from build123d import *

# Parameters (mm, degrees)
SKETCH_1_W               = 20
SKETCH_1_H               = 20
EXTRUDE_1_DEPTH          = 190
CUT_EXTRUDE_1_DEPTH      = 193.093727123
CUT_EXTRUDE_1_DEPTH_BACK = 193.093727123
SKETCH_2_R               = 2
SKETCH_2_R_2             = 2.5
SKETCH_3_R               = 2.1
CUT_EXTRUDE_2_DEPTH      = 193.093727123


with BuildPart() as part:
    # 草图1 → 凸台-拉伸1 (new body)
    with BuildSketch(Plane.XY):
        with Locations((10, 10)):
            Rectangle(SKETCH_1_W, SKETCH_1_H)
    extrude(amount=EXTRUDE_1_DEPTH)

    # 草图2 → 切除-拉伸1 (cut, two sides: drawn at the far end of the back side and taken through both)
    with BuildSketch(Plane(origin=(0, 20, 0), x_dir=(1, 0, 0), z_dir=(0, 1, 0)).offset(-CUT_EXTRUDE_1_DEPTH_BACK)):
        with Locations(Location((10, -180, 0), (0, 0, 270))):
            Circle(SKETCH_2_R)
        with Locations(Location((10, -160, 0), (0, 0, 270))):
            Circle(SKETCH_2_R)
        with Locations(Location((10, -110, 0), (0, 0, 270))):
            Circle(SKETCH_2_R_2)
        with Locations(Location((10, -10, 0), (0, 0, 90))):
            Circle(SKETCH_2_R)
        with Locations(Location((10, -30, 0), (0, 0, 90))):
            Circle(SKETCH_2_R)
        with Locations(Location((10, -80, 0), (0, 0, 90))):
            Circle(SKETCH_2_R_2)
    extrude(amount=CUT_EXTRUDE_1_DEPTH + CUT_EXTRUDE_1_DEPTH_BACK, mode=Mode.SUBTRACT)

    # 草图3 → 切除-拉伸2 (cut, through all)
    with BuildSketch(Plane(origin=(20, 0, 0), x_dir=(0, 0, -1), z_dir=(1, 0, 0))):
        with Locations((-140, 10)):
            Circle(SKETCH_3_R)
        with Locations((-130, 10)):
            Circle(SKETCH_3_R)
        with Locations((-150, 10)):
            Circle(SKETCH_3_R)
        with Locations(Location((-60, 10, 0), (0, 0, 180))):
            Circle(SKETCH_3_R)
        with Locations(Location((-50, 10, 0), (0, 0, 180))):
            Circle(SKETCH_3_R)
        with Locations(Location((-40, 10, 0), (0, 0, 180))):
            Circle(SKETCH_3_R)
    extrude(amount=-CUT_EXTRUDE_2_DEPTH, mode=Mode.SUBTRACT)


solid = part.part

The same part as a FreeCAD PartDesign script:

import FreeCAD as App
import Part
import Sketcher


def add_polygon(sketch, points):
    """Adds a closed chain of lines whose ends are joined by coincident constraints."""
    first, n = sketch.GeometryCount, len(points)
    for a, b in zip(points, points[1:] + points[:1]):
        sketch.addGeometry(Part.LineSegment(App.Vector(*a, 0), App.Vector(*b, 0)), False)
    for i in range(n):
        sketch.addConstraint(Sketcher.Constraint("Coincident", first + i, 2, first + (i + 1) % n, 1))

doc = App.newDocument("Part")
body = doc.addObject("PartDesign::Body", "Body")

sketch1 = doc.addObject("Sketcher::SketchObject", "Sketch")
body.addObject(sketch1)
sketch1.AttachmentSupport = (doc.XY_Plane, [""])
sketch1.MapMode = "FlatFace"
add_polygon(sketch1, [(0, 20), (0, 0), (20, 0), (20, 20)])
sketch1.addConstraint(Sketcher.Constraint("Vertical", 0))
sketch1.addConstraint(Sketcher.Constraint("Horizontal", 1))
sketch1.addConstraint(Sketcher.Constraint("Vertical", 2))
sketch1.addConstraint(Sketcher.Constraint("Horizontal", 3))
sketch1.addConstraint(Sketcher.Constraint("Coincident", 0, 2, -1, 1))
sketch1.addConstraint(Sketcher.Constraint("Equal", 3, 0))
sketch1.addConstraint(Sketcher.Constraint("DistanceX", 1, 1, 1, 2, 20.0))
pad1 = doc.addObject("PartDesign::Pad", "Pad")
body.addObject(pad1)
pad1.Profile = sketch1
pad1.Length = 190

sketch2 = doc.addObject("Sketcher::SketchObject", "Sketch001")
body.addObject(sketch2)
sketch2.AttachmentSupport = (doc.XZ_Plane, [""])
sketch2.MapMode = "FlatFace"
sketch2.AttachmentOffset = App.Placement(App.Vector(0, 0, -20), App.Rotation())
sketch2.addGeometry(Part.Circle(App.Vector(10, 180, 0), App.Vector(0, 0, 1), 2), False)
sketch2.addGeometry(Part.Circle(App.Vector(10, 160, 0), App.Vector(0, 0, 1), 2), False)
sketch2.addGeometry(Part.Circle(App.Vector(10, 110, 0), App.Vector(0, 0, 1), 2.5), False)
sketch2.addGeometry(Part.Circle(App.Vector(10, 10, 0), App.Vector(0, 0, 1), 2), False)
sketch2.addGeometry(Part.Circle(App.Vector(10, 30, 0), App.Vector(0, 0, 1), 2), False)
sketch2.addGeometry(Part.Circle(App.Vector(10, 80, 0), App.Vector(0, 0, 1), 2.5), False)
sketch2.addConstraint(Sketcher.Constraint("Equal", 0, 1))
sketch2.addConstraint(Sketcher.Constraint("Equal", 1, 3))
sketch2.addConstraint(Sketcher.Constraint("Equal", 3, 4))
sketch2.addConstraint(Sketcher.Constraint("Equal", 2, 5))
sketch2.addConstraint(Sketcher.Constraint("Vertical", 0, 3, 1, 3))
sketch2.addConstraint(Sketcher.Constraint("Vertical", 1, 3, 2, 3))
sketch2.addConstraint(Sketcher.Constraint("Vertical", 2, 3, 3, 3))
sketch2.addConstraint(Sketcher.Constraint("Vertical", 3, 3, 4, 3))
sketch2.addConstraint(Sketcher.Constraint("Vertical", 4, 3, 5, 3))
sketch2.addConstraint(Sketcher.Constraint("Diameter", 0, 4.0))
sketch2.addConstraint(Sketcher.Constraint("Diameter", 2, 5.0))
sketch2.addConstraint(Sketcher.Constraint("DistanceX", -1, 1, 0, 3, 10.0))
sketch2.addConstraint(Sketcher.Constraint("DistanceY", -1, 1, 0, 3, 180.0))
sketch2.addConstraint(Sketcher.Constraint("DistanceY", -1, 1, 1, 3, 160.0))
sketch2.addConstraint(Sketcher.Constraint("DistanceY", -1, 1, 2, 3, 110.0))
sketch2.addConstraint(Sketcher.Constraint("DistanceY", -1, 1, 3, 3, 10.0))
sketch2.addConstraint(Sketcher.Constraint("DistanceY", -1, 1, 4, 3, 30.0))
sketch2.addConstraint(Sketcher.Constraint("DistanceY", -1, 1, 5, 3, 80.0))
pocket1 = doc.addObject("PartDesign::Pocket", "Pocket")
body.addObject(pocket1)
pocket1.Profile = sketch2
pocket1.Type = "ThroughAll"
pocket1.Midplane = True

sketch3 = doc.addObject("Sketcher::SketchObject", "Sketch002")
body.addObject(sketch3)
sketch3.AttachmentSupport = (doc.YZ_Plane, [""])
sketch3.MapMode = "FlatFace"
sketch3.AttachmentOffset = App.Placement(App.Vector(0, 0, 20), App.Rotation())
sketch3.addGeometry(Part.Circle(App.Vector(10, 140, 0), App.Vector(0, 0, 1), 2.1), False)
sketch3.addGeometry(Part.Circle(App.Vector(10, 130, 0), App.Vector(0, 0, 1), 2.1), False)
sketch3.addGeometry(Part.Circle(App.Vector(10, 150, 0), App.Vector(0, 0, 1), 2.1), False)
sketch3.addGeometry(Part.Circle(App.Vector(10, 60, 0), App.Vector(0, 0, 1), 2.1), False)
sketch3.addGeometry(Part.Circle(App.Vector(10, 50, 0), App.Vector(0, 0, 1), 2.1), False)
sketch3.addGeometry(Part.Circle(App.Vector(10, 40, 0), App.Vector(0, 0, 1), 2.1), False)
sketch3.addConstraint(Sketcher.Constraint("Equal", 0, 1))
sketch3.addConstraint(Sketcher.Constraint("Equal", 1, 2))
sketch3.addConstraint(Sketcher.Constraint("Equal", 2, 3))
sketch3.addConstraint(Sketcher.Constraint("Equal", 3, 4))
sketch3.addConstraint(Sketcher.Constraint("Equal", 4, 5))
sketch3.addConstraint(Sketcher.Constraint("Vertical", 0, 3, 1, 3))
sketch3.addConstraint(Sketcher.Constraint("Vertical", 1, 3, 2, 3))
sketch3.addConstraint(Sketcher.Constraint("Vertical", 2, 3, 3, 3))
sketch3.addConstraint(Sketcher.Constraint("Vertical", 3, 3, 4, 3))
sketch3.addConstraint(Sketcher.Constraint("Vertical", 4, 3, 5, 3))
sketch3.addConstraint(Sketcher.Constraint("Diameter", 0, 4.2))
sketch3.addConstraint(Sketcher.Constraint("DistanceX", -1, 1, 0, 3, 10.0))
sketch3.addConstraint(Sketcher.Constraint("DistanceY", -1, 1, 0, 3, 140.0))
sketch3.addConstraint(Sketcher.Constraint("DistanceY", -1, 1, 1, 3, 130.0))
sketch3.addConstraint(Sketcher.Constraint("DistanceY", -1, 1, 2, 3, 150.0))
sketch3.addConstraint(Sketcher.Constraint("DistanceY", -1, 1, 3, 3, 60.0))
sketch3.addConstraint(Sketcher.Constraint("DistanceY", -1, 1, 4, 3, 50.0))
sketch3.addConstraint(Sketcher.Constraint("DistanceY", -1, 1, 5, 3, 40.0))
pocket2 = doc.addObject("PartDesign::Pocket", "Pocket001")
body.addObject(pocket2)
pocket2.Profile = sketch3
pocket2.Type = "ThroughAll"

doc.recompute()
